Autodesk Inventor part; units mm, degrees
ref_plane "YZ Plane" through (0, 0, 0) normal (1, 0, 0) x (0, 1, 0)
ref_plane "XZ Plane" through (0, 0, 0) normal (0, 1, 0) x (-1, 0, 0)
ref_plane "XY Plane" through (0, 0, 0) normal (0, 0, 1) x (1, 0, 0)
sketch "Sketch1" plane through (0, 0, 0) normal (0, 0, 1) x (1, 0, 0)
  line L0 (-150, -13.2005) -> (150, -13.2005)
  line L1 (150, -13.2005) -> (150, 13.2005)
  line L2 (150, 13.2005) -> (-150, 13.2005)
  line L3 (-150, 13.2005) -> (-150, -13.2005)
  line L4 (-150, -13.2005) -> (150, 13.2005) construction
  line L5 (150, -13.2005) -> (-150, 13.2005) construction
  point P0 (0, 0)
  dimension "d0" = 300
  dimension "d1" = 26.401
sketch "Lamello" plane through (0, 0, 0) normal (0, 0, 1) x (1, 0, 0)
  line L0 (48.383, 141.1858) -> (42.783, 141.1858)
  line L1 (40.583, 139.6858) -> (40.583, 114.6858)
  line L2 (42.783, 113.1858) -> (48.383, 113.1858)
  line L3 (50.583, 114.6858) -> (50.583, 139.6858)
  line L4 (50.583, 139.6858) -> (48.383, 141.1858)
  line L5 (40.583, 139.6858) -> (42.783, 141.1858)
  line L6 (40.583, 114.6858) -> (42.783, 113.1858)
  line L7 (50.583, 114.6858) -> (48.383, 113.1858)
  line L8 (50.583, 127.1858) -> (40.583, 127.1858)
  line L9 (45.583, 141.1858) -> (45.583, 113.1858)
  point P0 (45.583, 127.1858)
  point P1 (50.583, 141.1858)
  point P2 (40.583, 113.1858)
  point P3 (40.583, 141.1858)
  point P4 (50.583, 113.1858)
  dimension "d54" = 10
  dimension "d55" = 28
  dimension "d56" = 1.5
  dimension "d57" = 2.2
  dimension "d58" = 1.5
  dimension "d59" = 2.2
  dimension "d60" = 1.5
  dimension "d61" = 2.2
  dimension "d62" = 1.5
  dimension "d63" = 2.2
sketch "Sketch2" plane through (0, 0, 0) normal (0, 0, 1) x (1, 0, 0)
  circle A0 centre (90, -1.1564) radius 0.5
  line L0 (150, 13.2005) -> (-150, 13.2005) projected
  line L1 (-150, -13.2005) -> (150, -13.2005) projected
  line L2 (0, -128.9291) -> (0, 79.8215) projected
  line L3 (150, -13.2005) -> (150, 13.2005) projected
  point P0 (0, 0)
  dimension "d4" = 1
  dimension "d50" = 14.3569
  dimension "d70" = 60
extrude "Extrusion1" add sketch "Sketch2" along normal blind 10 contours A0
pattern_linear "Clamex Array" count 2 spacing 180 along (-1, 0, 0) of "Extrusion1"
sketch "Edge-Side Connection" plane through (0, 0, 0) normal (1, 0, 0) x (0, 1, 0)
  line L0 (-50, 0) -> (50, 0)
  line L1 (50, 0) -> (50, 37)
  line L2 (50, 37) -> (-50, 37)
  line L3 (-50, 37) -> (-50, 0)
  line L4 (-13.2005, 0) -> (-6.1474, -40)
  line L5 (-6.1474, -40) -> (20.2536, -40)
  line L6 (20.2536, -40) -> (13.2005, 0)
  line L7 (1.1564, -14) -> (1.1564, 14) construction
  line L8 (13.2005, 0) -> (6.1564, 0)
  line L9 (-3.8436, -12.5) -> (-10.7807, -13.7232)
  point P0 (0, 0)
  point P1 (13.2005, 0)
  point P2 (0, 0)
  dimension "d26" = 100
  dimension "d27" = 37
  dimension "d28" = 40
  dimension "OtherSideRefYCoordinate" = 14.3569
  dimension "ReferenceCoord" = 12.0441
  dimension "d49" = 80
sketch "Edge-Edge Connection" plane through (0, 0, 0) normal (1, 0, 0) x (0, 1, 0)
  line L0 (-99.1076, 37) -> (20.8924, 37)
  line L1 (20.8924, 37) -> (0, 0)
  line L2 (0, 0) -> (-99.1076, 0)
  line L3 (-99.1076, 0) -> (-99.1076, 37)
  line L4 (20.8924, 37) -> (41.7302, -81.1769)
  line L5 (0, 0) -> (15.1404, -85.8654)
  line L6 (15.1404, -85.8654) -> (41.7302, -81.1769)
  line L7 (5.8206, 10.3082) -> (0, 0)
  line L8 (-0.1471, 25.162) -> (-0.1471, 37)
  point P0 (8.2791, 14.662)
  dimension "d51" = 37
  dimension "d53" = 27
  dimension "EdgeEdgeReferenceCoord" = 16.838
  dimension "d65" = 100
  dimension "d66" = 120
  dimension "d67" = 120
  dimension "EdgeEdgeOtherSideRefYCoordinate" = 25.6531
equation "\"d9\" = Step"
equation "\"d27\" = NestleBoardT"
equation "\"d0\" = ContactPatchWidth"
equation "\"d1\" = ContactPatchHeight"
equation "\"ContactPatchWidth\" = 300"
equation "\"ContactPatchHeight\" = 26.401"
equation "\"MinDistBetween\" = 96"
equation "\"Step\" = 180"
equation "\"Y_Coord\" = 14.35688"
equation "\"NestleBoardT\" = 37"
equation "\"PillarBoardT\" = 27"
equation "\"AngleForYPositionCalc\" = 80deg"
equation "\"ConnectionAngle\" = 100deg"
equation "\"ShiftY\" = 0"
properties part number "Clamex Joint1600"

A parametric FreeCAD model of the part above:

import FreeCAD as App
import Part
import Sketcher

doc = App.newDocument("Part")
params = doc.addObject("Spreadsheet::Sheet", "Params")
for row, (alias, value) in enumerate([
    ("sketch1_diameter", "1 mm"),
    ("pad1_length", "10 mm"),
    ("linearpattern_pitch", "180 mm"),
], start=1):
    params.set(f"A{row}", alias)
    params.set(f"B{row}", "=" + value)
    params.setAlias(f"B{row}", alias)

body = doc.addObject("PartDesign::Body", "Body")
body.AllowCompound = True

# Sketch on XY plane
sketch1 = body.newObject("Sketcher::SketchObject", "Sketch")
sketch1.AttachmentSupport = (doc.getObject("XY_Plane"), [""])
sketch1.MapMode = "FlatFace"
sketch1.addGeometry(Part.Circle(App.Vector(90, -1.2, 0), App.Vector(0, 0, 1), 0.5), False)
sketch1.addConstraint([
    Sketcher.Constraint("Diameter", 0, 1.0),
    Sketcher.Constraint("DistanceX", -1, 1, 0, 3, 90.0),
    Sketcher.Constraint("DistanceY", 0, 3, -1, 1, 1.1564),
])
sketch1.setExpression("Constraints[0]", "Params.sketch1_diameter")
pad1 = body.newObject("PartDesign::Pad", "Pad")
pad1.Profile = sketch1
pad1.setExpression("Length", "Params.pad1_length")
doc.recompute()

linearpattern = body.newObject("PartDesign::LinearPattern", "LinearPattern")
linearpattern.Originals = [pad1]
linearpattern.Direction = (doc.getObject("X_Axis"), [""])
linearpattern.Mode = "offset"
linearpattern.setExpression("Offset", "Params.linearpattern_pitch")
linearpattern.Occurrences = 2
linearpattern.Reversed = True
body.Tip = linearpattern

doc.recompute()
